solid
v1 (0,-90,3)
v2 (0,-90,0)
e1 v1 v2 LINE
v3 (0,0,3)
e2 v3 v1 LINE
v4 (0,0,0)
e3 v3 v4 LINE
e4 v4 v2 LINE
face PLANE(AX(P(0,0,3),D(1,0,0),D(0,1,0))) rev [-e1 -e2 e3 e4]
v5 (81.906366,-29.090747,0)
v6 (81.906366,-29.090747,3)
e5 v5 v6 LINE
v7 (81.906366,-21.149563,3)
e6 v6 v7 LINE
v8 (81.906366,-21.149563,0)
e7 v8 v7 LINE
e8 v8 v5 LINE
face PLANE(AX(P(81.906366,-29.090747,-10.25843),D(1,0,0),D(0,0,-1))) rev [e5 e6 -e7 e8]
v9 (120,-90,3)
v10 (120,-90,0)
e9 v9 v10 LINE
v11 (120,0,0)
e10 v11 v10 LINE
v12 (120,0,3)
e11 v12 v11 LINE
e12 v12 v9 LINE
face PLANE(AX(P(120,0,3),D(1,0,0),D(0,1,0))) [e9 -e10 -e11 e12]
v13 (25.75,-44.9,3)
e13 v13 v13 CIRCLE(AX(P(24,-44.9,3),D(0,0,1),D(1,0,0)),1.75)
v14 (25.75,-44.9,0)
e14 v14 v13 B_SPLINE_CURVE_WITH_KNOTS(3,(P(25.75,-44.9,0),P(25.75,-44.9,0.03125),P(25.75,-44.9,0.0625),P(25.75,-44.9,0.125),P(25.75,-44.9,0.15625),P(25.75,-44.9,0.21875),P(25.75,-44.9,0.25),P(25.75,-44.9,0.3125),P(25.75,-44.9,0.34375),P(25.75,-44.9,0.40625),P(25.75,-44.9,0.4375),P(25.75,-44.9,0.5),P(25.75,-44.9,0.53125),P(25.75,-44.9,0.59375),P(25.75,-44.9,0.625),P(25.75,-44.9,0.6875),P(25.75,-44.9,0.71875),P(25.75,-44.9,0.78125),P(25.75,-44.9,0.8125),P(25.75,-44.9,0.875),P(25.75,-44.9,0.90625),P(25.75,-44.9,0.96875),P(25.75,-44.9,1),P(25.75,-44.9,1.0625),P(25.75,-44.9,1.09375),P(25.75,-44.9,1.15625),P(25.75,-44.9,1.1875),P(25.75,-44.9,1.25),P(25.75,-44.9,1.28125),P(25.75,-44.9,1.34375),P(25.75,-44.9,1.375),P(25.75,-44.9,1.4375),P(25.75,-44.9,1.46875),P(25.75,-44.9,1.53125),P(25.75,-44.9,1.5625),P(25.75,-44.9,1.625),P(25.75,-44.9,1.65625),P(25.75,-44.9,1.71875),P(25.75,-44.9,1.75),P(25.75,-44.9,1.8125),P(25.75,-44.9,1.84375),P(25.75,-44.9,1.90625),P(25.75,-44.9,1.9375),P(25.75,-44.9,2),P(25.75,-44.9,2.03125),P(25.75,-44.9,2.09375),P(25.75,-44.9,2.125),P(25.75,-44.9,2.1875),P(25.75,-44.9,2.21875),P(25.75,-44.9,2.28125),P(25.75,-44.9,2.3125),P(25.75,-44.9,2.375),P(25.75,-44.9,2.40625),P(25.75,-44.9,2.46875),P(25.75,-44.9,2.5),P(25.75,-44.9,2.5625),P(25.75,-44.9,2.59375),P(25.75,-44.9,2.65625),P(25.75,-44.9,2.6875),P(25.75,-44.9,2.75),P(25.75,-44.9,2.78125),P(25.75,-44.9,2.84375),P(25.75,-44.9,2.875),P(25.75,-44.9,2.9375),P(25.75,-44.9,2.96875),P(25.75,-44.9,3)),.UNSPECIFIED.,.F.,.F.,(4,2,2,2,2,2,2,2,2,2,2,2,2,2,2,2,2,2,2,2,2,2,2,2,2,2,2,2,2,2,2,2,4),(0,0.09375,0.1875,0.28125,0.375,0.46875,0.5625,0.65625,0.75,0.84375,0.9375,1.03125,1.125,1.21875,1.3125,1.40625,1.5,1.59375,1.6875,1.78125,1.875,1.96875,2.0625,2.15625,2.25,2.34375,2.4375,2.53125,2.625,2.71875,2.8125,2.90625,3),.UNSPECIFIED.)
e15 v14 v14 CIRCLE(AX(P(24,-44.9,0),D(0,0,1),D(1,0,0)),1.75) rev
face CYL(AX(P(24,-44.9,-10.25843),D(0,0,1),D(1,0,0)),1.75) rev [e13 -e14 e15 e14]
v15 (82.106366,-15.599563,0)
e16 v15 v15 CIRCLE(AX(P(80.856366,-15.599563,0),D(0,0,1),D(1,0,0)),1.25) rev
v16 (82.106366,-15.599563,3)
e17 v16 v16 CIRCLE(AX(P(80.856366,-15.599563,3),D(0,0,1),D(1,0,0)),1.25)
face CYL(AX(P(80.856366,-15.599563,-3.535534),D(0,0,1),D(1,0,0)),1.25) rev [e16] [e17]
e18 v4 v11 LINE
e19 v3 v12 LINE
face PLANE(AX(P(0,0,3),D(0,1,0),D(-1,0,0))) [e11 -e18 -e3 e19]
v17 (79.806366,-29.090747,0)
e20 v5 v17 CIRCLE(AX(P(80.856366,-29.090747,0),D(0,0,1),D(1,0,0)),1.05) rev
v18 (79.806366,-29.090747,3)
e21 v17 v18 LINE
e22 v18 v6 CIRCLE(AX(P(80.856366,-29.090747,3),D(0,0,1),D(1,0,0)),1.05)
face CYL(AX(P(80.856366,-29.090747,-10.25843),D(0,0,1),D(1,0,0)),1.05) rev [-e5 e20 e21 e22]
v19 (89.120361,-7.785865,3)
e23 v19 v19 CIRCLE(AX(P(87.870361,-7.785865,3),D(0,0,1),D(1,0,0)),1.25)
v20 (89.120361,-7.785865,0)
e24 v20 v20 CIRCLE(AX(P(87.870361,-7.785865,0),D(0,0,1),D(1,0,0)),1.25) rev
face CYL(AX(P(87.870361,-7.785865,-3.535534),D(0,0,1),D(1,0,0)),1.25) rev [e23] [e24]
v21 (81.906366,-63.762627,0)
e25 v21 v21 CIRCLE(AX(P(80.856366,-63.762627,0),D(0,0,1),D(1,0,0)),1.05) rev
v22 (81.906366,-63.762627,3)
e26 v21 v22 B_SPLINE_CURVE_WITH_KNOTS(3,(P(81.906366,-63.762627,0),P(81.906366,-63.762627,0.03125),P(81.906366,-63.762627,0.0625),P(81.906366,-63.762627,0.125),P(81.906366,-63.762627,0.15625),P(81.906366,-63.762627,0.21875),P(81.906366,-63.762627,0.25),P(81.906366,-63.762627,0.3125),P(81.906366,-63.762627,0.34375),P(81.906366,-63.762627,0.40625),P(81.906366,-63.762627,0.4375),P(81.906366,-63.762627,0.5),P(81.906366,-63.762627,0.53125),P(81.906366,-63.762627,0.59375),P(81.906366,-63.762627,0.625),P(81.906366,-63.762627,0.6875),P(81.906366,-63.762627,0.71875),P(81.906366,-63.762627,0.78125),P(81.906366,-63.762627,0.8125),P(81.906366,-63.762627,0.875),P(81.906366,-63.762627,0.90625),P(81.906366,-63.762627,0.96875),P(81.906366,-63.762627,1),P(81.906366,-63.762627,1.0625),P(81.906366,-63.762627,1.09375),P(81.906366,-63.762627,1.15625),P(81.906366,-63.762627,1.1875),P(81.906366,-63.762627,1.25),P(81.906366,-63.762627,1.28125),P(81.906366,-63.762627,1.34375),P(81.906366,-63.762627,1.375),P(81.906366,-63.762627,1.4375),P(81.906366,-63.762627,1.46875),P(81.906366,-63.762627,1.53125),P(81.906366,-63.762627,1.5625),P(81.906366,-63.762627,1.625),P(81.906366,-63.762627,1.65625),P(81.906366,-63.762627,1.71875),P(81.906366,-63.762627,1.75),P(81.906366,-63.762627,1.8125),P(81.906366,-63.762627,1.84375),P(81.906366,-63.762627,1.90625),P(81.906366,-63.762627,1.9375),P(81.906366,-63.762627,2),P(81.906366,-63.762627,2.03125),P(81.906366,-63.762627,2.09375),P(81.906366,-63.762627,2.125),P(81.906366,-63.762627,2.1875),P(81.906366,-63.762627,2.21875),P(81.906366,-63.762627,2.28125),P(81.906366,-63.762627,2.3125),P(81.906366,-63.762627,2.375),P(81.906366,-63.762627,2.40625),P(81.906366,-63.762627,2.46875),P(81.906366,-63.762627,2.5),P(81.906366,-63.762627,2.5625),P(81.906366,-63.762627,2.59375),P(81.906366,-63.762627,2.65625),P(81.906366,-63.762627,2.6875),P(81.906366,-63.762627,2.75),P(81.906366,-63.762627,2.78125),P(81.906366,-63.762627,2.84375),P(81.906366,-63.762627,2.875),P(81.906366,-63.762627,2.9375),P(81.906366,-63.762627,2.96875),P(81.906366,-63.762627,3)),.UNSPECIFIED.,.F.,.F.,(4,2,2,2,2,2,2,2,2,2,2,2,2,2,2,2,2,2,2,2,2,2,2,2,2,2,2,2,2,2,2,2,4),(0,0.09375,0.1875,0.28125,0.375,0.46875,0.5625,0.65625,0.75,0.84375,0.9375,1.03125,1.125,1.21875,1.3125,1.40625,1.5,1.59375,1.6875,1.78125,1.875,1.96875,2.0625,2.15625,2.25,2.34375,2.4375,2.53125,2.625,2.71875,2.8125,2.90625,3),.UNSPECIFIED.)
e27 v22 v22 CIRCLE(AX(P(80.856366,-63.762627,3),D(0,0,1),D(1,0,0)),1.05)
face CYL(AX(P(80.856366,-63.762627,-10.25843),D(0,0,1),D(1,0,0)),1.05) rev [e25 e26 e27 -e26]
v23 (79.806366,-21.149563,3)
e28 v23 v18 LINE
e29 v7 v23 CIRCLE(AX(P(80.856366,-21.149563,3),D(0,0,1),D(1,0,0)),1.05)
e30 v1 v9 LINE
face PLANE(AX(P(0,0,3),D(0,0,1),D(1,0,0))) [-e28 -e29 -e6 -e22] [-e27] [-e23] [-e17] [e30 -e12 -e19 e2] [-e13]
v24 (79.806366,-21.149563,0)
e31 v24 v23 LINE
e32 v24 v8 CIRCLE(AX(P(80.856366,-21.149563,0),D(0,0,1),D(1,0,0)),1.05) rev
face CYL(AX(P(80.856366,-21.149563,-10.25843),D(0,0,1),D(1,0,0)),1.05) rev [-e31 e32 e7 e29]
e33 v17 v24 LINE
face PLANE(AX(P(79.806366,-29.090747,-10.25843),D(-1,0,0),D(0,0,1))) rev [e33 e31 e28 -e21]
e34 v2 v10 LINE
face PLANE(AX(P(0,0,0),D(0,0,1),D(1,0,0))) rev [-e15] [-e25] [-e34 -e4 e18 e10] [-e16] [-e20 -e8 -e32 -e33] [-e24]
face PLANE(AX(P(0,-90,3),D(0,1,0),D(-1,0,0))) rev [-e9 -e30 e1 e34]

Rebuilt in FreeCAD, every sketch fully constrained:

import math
import FreeCAD as App
import Part
import Sketcher

V = App.Vector

doc = App.newDocument("Part")
params = doc.addObject("Spreadsheet::Sheet", "Params")
for row, (alias, value) in enumerate([
    ("sketch1_width", "120 mm"),
    ("sketch1_height", "90 mm"),
    ("pad1_length", "3 mm"),
    ("sketch2_diameter", "3.5 mm"),
    ("sketch2_diameter2", "2.1 mm"),
    ("pocket1_length", "3 mm"),
    ("sketch3_diameter", "2.5 mm"),
    ("pocket2_length", "3 mm"),
], start=1):
    params.set(f"A{row}", alias)
    params.set(f"B{row}", "=" + value)
    params.setAlias(f"B{row}", alias)

body = doc.addObject("PartDesign::Body", "Body")

sketch1 = body.newObject("Sketcher::SketchObject", "Sketch")
sketch1.AttachmentSupport = (doc.getObject("XY_Plane"), [""])
sketch1.MapMode = "FlatFace"
sketch1.addGeometry([
    Part.LineSegment(V(0, 0, 0), V(0, -90, 0)),
    Part.LineSegment(V(0, -90, 0), V(120, -90, 0)),
    Part.LineSegment(V(120, -90, 0), V(120, 0, 0)),
    Part.LineSegment(V(120, 0, 0), V(0, 0, 0)),
], False)
sketch1.addConstraint([
    Sketcher.Constraint("Coincident", 0, 2, 1, 1),
    Sketcher.Constraint("Coincident", 1, 2, 2, 1),
    Sketcher.Constraint("Coincident", 2, 2, 3, 1),
    Sketcher.Constraint("Coincident", 3, 2, 0, 1),
    Sketcher.Constraint("Vertical", 0),
    Sketcher.Constraint("Horizontal", 1),
    Sketcher.Constraint("Vertical", 2),
    Sketcher.Constraint("Horizontal", 3),
    Sketcher.Constraint("Coincident", 3, 2, -1, 1),
    Sketcher.Constraint("DistanceX", 1, 1, 1, 2, 120.0),
    Sketcher.Constraint("DistanceY", 0, 2, 0, 1, 90.0),
])
sketch1.setExpression("Constraints[9]", "Params.sketch1_width")
sketch1.setExpression("Constraints[10]", "Params.sketch1_height")
pad1 = body.newObject("PartDesign::Pad", "Pad")
pad1.Profile = sketch1
pad1.setExpression("Length", "Params.pad1_length")

sketch2 = body.newObject("Sketcher::SketchObject", "Sketch001")
sketch2.AttachmentSupport = (doc.getObject("XY_Plane"), [""])
sketch2.MapMode = "FlatFace"
sketch2.AttachmentOffset = App.Placement(V(0, 0, 3), App.Rotation())
sketch2.addGeometry([
    Part.Circle(V(24, -44.9, 0), V(0, 0, 1), 1.8),
    Part.Circle(V(80.9, -63.8, 0), V(0, 0, 1), 1.1),
    Part.LineSegment(V(79.8, -21.1, 0), V(79.8, -29.1, 0)),
    Part.ArcOfCircle(Part.Circle(V(80.9, -29.1, 0), V(0, 0, 1), 1.1), math.radians(180), math.radians(360)),
    Part.LineSegment(V(81.9, -29.1, 0), V(81.9, -21.1, 0)),
    Part.ArcOfCircle(Part.Circle(V(80.9, -21.1, 0), V(0, 0, 1), 1.1), math.radians(0), math.radians(180)),
], False)
sketch2.addConstraint([
    Sketcher.Constraint("Tangent", 2, 2, 3, 1),
    Sketcher.Constraint("Tangent", 3, 2, 4, 1),
    Sketcher.Constraint("Tangent", 4, 2, 5, 1),
    Sketcher.Constraint("Tangent", 5, 2, 2, 1),
    Sketcher.Constraint("Vertical", 2),
    Sketcher.Constraint("Vertical", 4),
    Sketcher.Constraint("Equal", 1, 3),
    Sketcher.Constraint("Vertical", 1, 3, 3, 3),
    Sketcher.Constraint("Diameter", 0, 3.5),
    Sketcher.Constraint("Diameter", 1, 2.1),
    Sketcher.Constraint("DistanceX", -1, 1, 0, 3, 24.0),
    Sketcher.Constraint("DistanceY", 0, 3, -1, 1, 44.9),
    Sketcher.Constraint("DistanceY", 2, 2, 2, 1, 7.941184),
    Sketcher.Constraint("DistanceY", 1, 3, 3, 3, 34.671881),
    Sketcher.Constraint("DistanceX", -1, 1, 1, 3, 80.856366),
    Sketcher.Constraint("DistanceY", 1, 3, -1, 1, 63.762627),
])
sketch2.setExpression("Constraints[8]", "Params.sketch2_diameter")
sketch2.setExpression("Constraints[9]", "Params.sketch2_diameter2")
pocket1 = body.newObject("PartDesign::Pocket", "Pocket")
pocket1.Profile = sketch2
pocket1.setExpression("Length", "Params.pocket1_length")

sketch3 = body.newObject("Sketcher::SketchObject", "Sketch002")
sketch3.AttachmentSupport = (doc.getObject("XY_Plane"), [""])
sketch3.MapMode = "FlatFace"
sketch3.AttachmentOffset = App.Placement(V(0, 0, 3), App.Rotation())
sketch3.addGeometry([
    Part.Circle(V(80.9, -15.6, 0), V(0, 0, 1), 1.2),
    Part.Circle(V(87.9, -7.8, 0), V(0, 0, 1), 1.2),
], False)
sketch3.addConstraint([
    Sketcher.Constraint("Equal", 0, 1),
    Sketcher.Constraint("Diameter", 0, 2.5),
    Sketcher.Constraint("DistanceX", -1, 1, 1, 3, 87.870361),
    Sketcher.Constraint("DistanceX", -1, 1, 0, 3, 80.856366),
    Sketcher.Constraint("DistanceY", 0, 3, -1, 1, 15.599563),
    Sketcher.Constraint("DistanceY", 1, 3, -1, 1, 7.785865),
])
sketch3.setExpression("Constraints[1]", "Params.sketch3_diameter")
pocket2 = body.newObject("PartDesign::Pocket", "Pocket001")
pocket2.Profile = sketch3
pocket2.setExpression("Length", "Params.pocket2_length")

doc.recompute()
